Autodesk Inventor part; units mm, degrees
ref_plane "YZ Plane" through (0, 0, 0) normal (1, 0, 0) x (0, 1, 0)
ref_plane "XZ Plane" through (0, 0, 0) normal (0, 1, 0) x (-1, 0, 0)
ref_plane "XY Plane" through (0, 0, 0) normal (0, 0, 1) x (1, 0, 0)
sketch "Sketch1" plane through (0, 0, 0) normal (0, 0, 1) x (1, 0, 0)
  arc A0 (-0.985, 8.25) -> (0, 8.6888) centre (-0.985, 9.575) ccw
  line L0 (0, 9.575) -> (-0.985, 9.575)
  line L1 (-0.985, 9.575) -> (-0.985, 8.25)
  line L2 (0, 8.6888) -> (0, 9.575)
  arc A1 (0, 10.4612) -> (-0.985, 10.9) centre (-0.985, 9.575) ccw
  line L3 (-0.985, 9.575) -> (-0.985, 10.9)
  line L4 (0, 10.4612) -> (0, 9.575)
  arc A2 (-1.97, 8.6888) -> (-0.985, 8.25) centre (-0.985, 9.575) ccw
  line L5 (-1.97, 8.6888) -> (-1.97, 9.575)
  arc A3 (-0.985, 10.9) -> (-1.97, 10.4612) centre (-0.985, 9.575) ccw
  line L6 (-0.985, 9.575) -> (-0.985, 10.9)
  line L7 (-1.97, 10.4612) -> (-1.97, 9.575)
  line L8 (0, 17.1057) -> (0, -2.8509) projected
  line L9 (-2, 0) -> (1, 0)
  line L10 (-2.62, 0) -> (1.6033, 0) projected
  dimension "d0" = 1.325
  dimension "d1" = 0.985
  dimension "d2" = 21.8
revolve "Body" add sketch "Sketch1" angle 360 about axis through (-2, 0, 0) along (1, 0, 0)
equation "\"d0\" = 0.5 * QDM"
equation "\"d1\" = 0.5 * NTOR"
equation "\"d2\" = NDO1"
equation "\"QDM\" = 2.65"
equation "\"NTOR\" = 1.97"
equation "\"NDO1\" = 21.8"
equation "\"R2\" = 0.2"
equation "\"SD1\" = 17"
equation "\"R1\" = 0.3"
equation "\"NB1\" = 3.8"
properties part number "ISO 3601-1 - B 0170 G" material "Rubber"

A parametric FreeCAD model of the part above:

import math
import FreeCAD as App
import Part
import Sketcher

V = App.Vector
Q = App.Units.Quantity

doc = App.newDocument("Part")
params = doc.addObject("Spreadsheet::Sheet", "Params")
for row, (alias, value) in enumerate([
    ("revolution_angle", "360 deg"),
], start=1):
    params.set(f"A{row}", alias)
    params.set(f"B{row}", "=" + value)
    params.setAlias(f"B{row}", alias)

body = doc.addObject("PartDesign::Body", "Body")

# Sketch on XY plane
sketch1 = body.newObject("Sketcher::SketchObject", "Sketch")
sketch1.AttachmentSupport = (doc.getObject("XY_Plane"), [""])
sketch1.MapMode = "FlatFace"
sketch1.addGeometry([
    Part.LineSegment(V(0, 8.7, 0), V(0, 10.5, 0)),  # 0
    Part.ArcOfCircle(Part.Circle(V(-1, 9.6, 0), V(0, 0, 1), 1.3), math.radians(42), math.radians(90)),  # 1
    Part.ArcOfCircle(Part.Circle(V(-1, 9.6, 0), V(0, 0, 1), 1.3), math.radians(90), math.radians(138)),  # 2
    Part.LineSegment(V(-2, 10.5, 0), V(-2, 8.7, 0)),  # 3
    Part.ArcOfCircle(Part.Circle(V(-1, 9.6, 0), V(0, 0, 1), 1.3), math.radians(-138), math.radians(-90)),  # 4
    Part.ArcOfCircle(Part.Circle(V(-1, 9.6, 0), V(0, 0, 1), 1.3), math.radians(-90), math.radians(-42)),  # 5
], False)
sketch1.addConstraint([
    Sketcher.Constraint("Coincident", 0, 2, 1, 1),
    Sketcher.Constraint("Tangent", 1, 2, 2, 1),
    Sketcher.Constraint("Coincident", 2, 2, 3, 1),
    Sketcher.Constraint("Coincident", 3, 2, 4, 1),
    Sketcher.Constraint("Tangent", 4, 2, 5, 1),
    Sketcher.Constraint("Coincident", 5, 2, 0, 1),
    Sketcher.Constraint("Vertical", 0),
    Sketcher.Constraint("Vertical", 3),
    Sketcher.Constraint("Coincident", 4, 3, 1, 3),
    Sketcher.Constraint("Equal", 1, 2),
    Sketcher.Constraint("Equal", 2, 4),
    Sketcher.Constraint("Equal", 4, 5),
    Sketcher.Constraint("PointOnObject", 0, 2, -2),
    Sketcher.Constraint("Horizontal", 0, 2, 2, 2),
    Sketcher.Constraint("Vertical", 5, 3, 1, 2),
    Sketcher.Constraint("Vertical", 1, 2, 4, 2),
    Sketcher.Constraint("Radius", 1, Q("1.325 mm")),
    Sketcher.Constraint("DistanceX", 1, 3, -1, 1, Q("0.985 mm")),
    Sketcher.Constraint("DistanceY", -1, 1, 1, 2, Q("10.9 mm")),
])
revolution = body.newObject("PartDesign::Revolution", "Revolution")
revolution.Profile = sketch1
revolution.ReferenceAxis = (sketch1, ["H_Axis"])
revolution.setExpression("Angle", "Params.revolution_angle")

doc.recompute()
